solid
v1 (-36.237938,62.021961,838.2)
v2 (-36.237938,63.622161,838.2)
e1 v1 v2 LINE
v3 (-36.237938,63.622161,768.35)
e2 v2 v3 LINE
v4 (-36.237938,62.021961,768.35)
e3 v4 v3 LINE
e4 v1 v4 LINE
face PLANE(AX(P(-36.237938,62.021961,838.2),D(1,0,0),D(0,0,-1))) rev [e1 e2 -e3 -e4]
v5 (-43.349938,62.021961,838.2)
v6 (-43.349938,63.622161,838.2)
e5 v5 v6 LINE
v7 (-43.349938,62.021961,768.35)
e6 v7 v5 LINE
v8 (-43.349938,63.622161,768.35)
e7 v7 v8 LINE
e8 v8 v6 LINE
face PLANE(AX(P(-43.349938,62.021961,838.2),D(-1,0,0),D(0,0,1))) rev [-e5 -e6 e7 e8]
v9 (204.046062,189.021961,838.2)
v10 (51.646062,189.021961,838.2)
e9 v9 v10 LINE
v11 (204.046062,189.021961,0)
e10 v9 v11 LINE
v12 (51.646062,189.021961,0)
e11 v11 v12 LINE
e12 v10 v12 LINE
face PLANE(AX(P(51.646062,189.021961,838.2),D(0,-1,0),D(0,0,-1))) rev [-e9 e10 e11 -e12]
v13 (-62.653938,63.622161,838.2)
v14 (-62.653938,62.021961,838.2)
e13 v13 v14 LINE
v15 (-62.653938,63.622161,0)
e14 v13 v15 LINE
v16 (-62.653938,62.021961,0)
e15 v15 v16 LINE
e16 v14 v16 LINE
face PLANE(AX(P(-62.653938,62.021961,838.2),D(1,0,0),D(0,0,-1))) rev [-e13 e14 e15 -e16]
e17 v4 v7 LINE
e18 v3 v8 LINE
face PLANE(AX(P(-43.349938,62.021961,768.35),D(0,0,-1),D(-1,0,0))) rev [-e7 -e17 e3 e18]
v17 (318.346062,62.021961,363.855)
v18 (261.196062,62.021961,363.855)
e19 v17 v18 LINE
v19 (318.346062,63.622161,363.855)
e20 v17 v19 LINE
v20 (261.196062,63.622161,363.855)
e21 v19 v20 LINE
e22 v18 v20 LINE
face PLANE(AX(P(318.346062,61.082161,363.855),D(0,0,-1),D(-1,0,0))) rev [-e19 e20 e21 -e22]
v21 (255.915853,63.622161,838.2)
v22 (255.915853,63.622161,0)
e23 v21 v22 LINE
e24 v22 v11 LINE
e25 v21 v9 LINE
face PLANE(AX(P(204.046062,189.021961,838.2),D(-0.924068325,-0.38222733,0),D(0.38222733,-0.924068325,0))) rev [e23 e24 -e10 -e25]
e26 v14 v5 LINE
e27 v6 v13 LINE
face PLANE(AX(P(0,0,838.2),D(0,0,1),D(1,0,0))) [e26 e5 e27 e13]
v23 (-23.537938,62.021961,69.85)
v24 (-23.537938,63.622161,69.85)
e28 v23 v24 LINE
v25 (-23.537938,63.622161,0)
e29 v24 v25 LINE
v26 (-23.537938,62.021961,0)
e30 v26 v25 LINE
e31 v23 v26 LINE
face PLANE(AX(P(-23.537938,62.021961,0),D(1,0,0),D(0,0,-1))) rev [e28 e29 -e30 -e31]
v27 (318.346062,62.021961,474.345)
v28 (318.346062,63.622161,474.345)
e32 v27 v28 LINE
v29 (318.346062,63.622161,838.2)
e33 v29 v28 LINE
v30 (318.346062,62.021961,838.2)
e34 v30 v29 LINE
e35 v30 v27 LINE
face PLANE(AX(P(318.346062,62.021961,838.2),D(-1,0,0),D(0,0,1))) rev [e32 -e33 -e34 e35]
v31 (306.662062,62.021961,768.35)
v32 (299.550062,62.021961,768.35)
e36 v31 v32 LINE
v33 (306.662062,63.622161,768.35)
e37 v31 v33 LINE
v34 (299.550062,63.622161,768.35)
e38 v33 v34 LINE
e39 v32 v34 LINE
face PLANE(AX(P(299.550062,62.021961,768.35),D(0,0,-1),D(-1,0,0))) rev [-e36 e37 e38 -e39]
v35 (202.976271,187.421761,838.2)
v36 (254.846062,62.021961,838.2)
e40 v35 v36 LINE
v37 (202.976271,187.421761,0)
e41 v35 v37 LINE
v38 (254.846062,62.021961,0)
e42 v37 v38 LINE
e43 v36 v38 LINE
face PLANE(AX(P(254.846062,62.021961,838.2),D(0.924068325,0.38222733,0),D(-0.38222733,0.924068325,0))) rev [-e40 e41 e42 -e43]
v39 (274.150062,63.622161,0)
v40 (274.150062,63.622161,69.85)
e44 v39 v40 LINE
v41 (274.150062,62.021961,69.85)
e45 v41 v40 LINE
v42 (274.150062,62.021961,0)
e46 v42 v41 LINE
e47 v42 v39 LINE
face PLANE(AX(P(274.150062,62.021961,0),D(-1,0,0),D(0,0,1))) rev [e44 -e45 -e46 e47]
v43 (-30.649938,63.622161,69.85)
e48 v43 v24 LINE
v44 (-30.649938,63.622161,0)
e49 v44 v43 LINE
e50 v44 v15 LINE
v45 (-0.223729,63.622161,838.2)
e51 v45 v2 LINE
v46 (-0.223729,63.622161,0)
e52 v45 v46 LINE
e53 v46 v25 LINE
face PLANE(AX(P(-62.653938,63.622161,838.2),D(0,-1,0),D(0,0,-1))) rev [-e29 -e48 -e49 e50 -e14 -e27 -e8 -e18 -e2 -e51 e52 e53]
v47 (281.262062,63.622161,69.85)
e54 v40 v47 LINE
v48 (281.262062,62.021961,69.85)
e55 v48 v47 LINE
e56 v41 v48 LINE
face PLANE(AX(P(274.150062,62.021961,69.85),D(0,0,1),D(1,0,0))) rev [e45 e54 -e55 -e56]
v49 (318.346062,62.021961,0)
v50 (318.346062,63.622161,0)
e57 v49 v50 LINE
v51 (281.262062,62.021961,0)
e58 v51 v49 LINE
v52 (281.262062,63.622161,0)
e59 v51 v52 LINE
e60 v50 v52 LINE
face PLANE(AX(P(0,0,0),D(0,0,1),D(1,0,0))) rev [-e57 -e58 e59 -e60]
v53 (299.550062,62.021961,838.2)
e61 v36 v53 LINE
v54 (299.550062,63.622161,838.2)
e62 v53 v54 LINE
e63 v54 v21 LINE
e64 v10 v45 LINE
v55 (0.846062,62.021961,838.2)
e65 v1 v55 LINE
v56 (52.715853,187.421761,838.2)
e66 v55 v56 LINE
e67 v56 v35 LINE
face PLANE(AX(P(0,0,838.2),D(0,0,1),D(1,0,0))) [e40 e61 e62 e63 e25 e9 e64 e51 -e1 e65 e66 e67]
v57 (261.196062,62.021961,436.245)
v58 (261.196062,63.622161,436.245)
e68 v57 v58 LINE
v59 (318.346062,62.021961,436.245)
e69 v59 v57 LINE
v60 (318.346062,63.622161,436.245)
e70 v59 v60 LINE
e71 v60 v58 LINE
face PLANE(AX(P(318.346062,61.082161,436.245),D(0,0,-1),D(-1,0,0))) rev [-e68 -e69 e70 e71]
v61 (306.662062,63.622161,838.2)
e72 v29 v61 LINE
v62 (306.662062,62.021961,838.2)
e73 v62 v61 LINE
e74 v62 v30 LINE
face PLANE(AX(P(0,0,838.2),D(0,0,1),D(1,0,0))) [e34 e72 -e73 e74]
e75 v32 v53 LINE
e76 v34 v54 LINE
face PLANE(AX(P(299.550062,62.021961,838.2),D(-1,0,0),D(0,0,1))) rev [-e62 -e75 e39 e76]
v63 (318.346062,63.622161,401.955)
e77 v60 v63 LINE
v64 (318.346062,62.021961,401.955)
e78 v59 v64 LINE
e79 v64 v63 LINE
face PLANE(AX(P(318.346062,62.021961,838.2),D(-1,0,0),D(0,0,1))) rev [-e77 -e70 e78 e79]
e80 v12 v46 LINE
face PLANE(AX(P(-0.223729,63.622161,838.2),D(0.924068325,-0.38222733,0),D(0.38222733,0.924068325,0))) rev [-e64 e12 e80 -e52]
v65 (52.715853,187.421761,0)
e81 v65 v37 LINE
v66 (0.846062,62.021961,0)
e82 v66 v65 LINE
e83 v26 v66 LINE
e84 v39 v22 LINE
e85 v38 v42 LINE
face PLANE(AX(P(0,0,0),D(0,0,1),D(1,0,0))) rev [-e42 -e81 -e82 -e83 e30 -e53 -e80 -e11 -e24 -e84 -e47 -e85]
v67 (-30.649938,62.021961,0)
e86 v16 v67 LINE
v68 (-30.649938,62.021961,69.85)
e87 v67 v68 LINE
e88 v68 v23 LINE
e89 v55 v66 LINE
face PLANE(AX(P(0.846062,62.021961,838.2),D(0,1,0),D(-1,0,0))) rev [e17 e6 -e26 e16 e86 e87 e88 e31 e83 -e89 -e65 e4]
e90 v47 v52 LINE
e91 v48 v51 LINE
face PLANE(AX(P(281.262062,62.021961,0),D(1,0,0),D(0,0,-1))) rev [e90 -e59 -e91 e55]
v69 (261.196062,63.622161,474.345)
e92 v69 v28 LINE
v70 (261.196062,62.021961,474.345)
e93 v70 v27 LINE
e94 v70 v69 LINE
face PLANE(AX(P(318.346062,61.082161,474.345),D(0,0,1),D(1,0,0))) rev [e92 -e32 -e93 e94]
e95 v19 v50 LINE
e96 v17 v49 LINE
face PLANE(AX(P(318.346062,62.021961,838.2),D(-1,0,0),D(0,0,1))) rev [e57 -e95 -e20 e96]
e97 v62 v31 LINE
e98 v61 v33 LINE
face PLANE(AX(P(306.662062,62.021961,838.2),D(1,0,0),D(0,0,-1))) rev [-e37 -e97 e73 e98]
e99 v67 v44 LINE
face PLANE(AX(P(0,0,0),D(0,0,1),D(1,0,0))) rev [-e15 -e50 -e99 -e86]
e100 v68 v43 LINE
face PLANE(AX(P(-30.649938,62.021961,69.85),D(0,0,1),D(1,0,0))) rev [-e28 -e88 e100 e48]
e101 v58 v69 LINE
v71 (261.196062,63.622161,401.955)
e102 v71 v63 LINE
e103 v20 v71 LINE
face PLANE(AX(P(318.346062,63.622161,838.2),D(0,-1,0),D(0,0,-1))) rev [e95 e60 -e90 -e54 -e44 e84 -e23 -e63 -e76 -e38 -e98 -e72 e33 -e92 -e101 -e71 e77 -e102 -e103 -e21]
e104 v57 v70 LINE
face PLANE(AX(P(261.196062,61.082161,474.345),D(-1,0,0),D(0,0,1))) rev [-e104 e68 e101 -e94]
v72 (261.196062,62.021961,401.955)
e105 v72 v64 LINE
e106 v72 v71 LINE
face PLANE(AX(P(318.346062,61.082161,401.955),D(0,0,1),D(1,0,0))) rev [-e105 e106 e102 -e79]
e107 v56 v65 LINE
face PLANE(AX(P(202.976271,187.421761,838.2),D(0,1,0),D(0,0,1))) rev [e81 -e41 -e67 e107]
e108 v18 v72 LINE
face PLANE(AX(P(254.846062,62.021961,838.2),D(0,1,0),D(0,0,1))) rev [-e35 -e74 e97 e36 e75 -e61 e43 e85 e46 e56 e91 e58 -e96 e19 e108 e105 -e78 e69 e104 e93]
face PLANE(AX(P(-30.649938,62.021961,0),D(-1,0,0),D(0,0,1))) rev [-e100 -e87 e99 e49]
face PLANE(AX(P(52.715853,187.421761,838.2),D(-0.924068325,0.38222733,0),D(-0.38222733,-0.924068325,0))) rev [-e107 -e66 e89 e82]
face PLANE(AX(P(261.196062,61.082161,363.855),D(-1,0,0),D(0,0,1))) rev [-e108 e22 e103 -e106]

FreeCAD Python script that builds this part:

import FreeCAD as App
import Part
import Sketcher

V = App.Vector
Q = App.Units.Quantity


def add_polygon(sketch, points):
    """Adds a closed chain of lines whose ends are joined by coincident constraints."""
    first, n = sketch.GeometryCount, len(points)
    for a, b in zip(points, points[1:] + points[:1]):
        sketch.addGeometry(Part.LineSegment(App.Vector(*a, 0), App.Vector(*b, 0)), False)
    for i in range(n):
        sketch.addConstraint(Sketcher.Constraint("Coincident", first + i, 2, first + (i + 1) % n, 1))

doc = App.newDocument("Part")
body = doc.addObject("PartDesign::Body", "Body")

# Sketch on XY plane
sketch1 = body.newObject("Sketcher::SketchObject", "Sketch")
sketch1.AttachmentSupport = (doc.getObject("XY_Plane"), [""])
sketch1.MapMode = "FlatFace"
add_polygon(sketch1, [(51.6, 189), (-0.2, 63.6), (-62.7, 63.6), (-62.7, 62), (0.8, 62), (52.7, 187.4), (203, 187.4), (254.8, 62), (318.3, 62), (318.3, 63.6), (255.9, 63.6), (204, 189)])  # lines 0-11
sketch1.addConstraint([
    Sketcher.Constraint("Horizontal", 1),
    Sketcher.Constraint("Vertical", 2),
    Sketcher.Constraint("Horizontal", 3),
    Sketcher.Constraint("Horizontal", 5),
    Sketcher.Constraint("Horizontal", 7),
    Sketcher.Constraint("Vertical", 8),
    Sketcher.Constraint("Horizontal", 9),
    Sketcher.Constraint("Horizontal", 11),
    Sketcher.Constraint("Parallel", 0, 4),
    Sketcher.Constraint("Parallel", 6, 10),
    Sketcher.Constraint("Horizontal", 3, 2, 6, 2),
    Sketcher.Constraint("Horizontal", 1, 2, 8, 2),
    Sketcher.Constraint("Equal", 3, 7),
    Sketcher.Constraint("Equal", 1, 9),
    Sketcher.Constraint("Equal", 0, 4),
    Sketcher.Constraint("Equal", 4, 6),
    Sketcher.Constraint("DistanceX", 11, 2, 11, 1, Q("6 in")),
    Sketcher.Constraint("DistanceX", 3, 1, 3, 2, Q("2.5 in")),
    Sketcher.Constraint("DistanceX", 0, 2, 5, 2, Q("8 in")),
    Sketcher.Constraint("DistanceY", 6, 2, 10, 2, Q("5 in")),
    Sketcher.Constraint("DistanceY", 2, 2, 2, 1, Q("0.063 in")),
    Sketcher.Constraint("DistanceX", 1, 2, 1, 1, 62.430209),
    Sketcher.Constraint("DistanceX", 0, 2, -1, 1, 0.223729),
    Sketcher.Constraint("DistanceY", -1, 1, 0, 2, 63.622161),
])
pad1 = body.newObject("PartDesign::Pad", "Pad")
pad1.Profile = sketch1
pad1.Length = Q("33 in")

# Sketch on XZ plane
sketch2 = body.newObject("Sketcher::SketchObject", "Sketch001")
sketch2.AttachmentSupport = (doc.getObject("XZ_Plane"), [""])
sketch2.MapMode = "FlatFace"
sketch2.AttachmentOffset = App.Placement(V(0, 0, -63.622161), App.Rotation())
add_polygon(sketch2, [(261, 364), (261, 402), (318, 402), (318, 364)])  # lines 0-3
add_polygon(sketch2, [(261, 436), (261, 474), (318, 474), (318, 436)])  # lines 4-7
sketch2.addConstraint([
    Sketcher.Constraint("Vertical", 0),
    Sketcher.Constraint("Horizontal", 1),
    Sketcher.Constraint("Vertical", 2),
    Sketcher.Constraint("Horizontal", 3),
    Sketcher.Constraint("Vertical", 4),
    Sketcher.Constraint("Horizontal", 5),
    Sketcher.Constraint("Vertical", 6),
    Sketcher.Constraint("Horizontal", 7),
    Sketcher.Constraint("Vertical", 3, 2, 4, 2),
    Sketcher.Constraint("Vertical", 2, 2, 5, 2),
    Sketcher.Constraint("Equal", 2, 4),
    Sketcher.Constraint("DistanceY", 0, 1, 0, 2, Q("1.5 in")),
    Sketcher.Constraint("DistanceX", 1, 1, 1, 2, Q("2.25 in")),
    Sketcher.Constraint("DistanceY", 0, 2, 4, 2, Q("2.85 in")),
    Sketcher.Constraint("DistanceY", -1, 1, 0, 2, Q("15.825 in")),
    Sketcher.Constraint("DistanceX", -1, 1, 0, 2, 261.196062),
])
pocket1 = body.newObject("PartDesign::Pocket", "Pocket")
pocket1.Profile = sketch2
pocket1.Length = Q("0.1 in")
pocket1.Reversed = True

# Sketch on XZ plane
sketch3 = body.newObject("Sketcher::SketchObject", "Sketch002")
sketch3.AttachmentSupport = (doc.getObject("XZ_Plane"), [""])
sketch3.MapMode = "FlatFace"
sketch3.AttachmentOffset = App.Placement(V(0, 0, -63.622161), App.Rotation())
add_polygon(sketch3, [(-31, 0), (-31, 70), (-24, 70), (-24, 0)])  # lines 0-3
add_polygon(sketch3, [(-43, 768), (-43, 838), (-36, 838), (-36, 768)])  # lines 4-7
add_polygon(sketch3, [(274, 0), (274, 70), (281, 70), (281, 0)])  # lines 8-11
add_polygon(sketch3, [(300, 768), (300, 838), (307, 838), (307, 768)])  # lines 12-15
sketch3.addConstraint([
    Sketcher.Constraint("Vertical", 0),
    Sketcher.Constraint("Horizontal", 1),
    Sketcher.Constraint("Vertical", 2),
    Sketcher.Constraint("Horizontal", 3),
    Sketcher.Constraint("Vertical", 4),
    Sketcher.Constraint("Horizontal", 5),
    Sketcher.Constraint("Vertical", 6),
    Sketcher.Constraint("Horizontal", 7),
    Sketcher.Constraint("Vertical", 8),
    Sketcher.Constraint("Horizontal", 9),
    Sketcher.Constraint("Vertical", 10),
    Sketcher.Constraint("Horizontal", 11),
    Sketcher.Constraint("Vertical", 12),
    Sketcher.Constraint("Horizontal", 13),
    Sketcher.Constraint("Vertical", 14),
    Sketcher.Constraint("Horizontal", 15),
    Sketcher.Constraint("PointOnObject", 2, 2, -1),
    Sketcher.Constraint("PointOnObject", 10, 2, -1),
    Sketcher.Constraint("Horizontal", 1, 2, 8, 2),
    Sketcher.Constraint("Horizontal", 5, 2, 12, 2),
    Sketcher.Constraint("Horizontal", 7, 2, 14, 2),
    Sketcher.Constraint("Equal", 3, 5),
    Sketcher.Constraint("Equal", 7, 9),
    Sketcher.Constraint("Equal", 11, 13),
    Sketcher.Constraint("Equal", 2, 4),
    Sketcher.Constraint("DistanceY", -1, 1, 4, 2, Q("33 in")),
    Sketcher.Constraint("DistanceX", 0, 2, 8, 2, Q("12 in")),
    Sketcher.Constraint("DistanceX", 1, 1, 1, 2, Q("0.28 in")),
    Sketcher.Constraint("DistanceY", 0, 1, 0, 2, Q("2.75 in")),
    Sketcher.Constraint("DistanceX", 4, 2, 0, 2, Q("0.5 in")),
    Sketcher.Constraint("DistanceX", 4, 2, 12, 2, Q("13.5 in")),
    Sketcher.Constraint("DistanceX", 0, 2, -1, 1, 30.649938),
])
pocket2 = body.newObject("PartDesign::Pocket", "Pocket001")
pocket2.Profile = sketch3
pocket2.Type = "ThroughAll"
pocket2.Reversed = True

doc.recompute()
